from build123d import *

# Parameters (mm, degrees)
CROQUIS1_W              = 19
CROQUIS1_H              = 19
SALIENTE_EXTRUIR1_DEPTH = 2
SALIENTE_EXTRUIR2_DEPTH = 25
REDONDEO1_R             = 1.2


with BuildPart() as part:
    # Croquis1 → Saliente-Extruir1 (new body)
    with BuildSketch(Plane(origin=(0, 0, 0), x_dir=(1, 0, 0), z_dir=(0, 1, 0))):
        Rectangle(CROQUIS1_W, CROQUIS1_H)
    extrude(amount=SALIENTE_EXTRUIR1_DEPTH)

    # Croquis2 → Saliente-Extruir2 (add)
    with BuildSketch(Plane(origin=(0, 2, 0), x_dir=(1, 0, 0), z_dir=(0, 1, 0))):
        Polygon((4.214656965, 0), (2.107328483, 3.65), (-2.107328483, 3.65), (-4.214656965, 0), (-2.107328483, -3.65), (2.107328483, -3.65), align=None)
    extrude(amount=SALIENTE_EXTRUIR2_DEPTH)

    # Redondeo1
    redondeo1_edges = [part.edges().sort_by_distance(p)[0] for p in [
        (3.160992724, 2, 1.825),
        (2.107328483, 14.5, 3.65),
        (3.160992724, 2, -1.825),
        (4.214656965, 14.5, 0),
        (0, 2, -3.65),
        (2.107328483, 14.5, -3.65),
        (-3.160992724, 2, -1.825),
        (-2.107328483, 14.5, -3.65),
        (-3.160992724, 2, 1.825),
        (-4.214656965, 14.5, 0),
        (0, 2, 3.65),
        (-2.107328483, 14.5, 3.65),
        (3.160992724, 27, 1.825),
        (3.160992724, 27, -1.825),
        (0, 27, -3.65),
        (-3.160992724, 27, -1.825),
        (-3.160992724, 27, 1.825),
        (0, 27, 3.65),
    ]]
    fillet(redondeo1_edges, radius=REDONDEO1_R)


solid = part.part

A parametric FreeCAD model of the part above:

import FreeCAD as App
import Part
import Sketcher
from FreeCAD import Vector
Q = App.Units.Quantity


def edges_at(feature, points):
    """Names of the edges that pass closest to the given points."""
    edges = feature.Shape.Edges
    near = lambda p: min(range(len(edges)), key=lambda i: edges[i].distToShape(Part.Vertex(*p))[0])
    return sorted({f"Edge{near(p) + 1}" for p in points})


def add_polygon(sketch, points):
    """Adds a closed chain of lines whose ends are joined by coincident constraints."""
    first, n = sketch.GeometryCount, len(points)
    for a, b in zip(points, points[1:] + points[:1]):
        sketch.addGeometry(Part.LineSegment(App.Vector(*a, 0), App.Vector(*b, 0)), False)
    for i in range(n):
        sketch.addConstraint(Sketcher.Constraint("Coincident", first + i, 2, first + (i + 1) % n, 1))

doc = App.newDocument("Part")
params = doc.addObject("Spreadsheet::Sheet", "Params")
for row, (alias, value) in enumerate([
    ("sketch1_width", "19 mm"),
    ("pad1_length", "2 mm"),
    ("pad2_length", "25 mm"),
    ("fillet_radius", "1.2 mm"),
], start=1):
    params.set(f"A{row}", alias)
    params.set(f"B{row}", "=" + value)
    params.setAlias(f"B{row}", alias)

body = doc.addObject("PartDesign::Body", "Body")

sketch1 = body.newObject("Sketcher::SketchObject", "Sketch")
sketch1.AttachmentSupport = (doc.getObject("XZ_Plane"), [""])
sketch1.MapMode = "FlatFace"
add_polygon(sketch1, [(-10, -10), (-10, 10), (10, 10), (10, -10)])
sketch1.addConstraint(Sketcher.Constraint("Vertical", 0))
sketch1.addConstraint(Sketcher.Constraint("Horizontal", 1))
sketch1.addConstraint(Sketcher.Constraint("Vertical", 2))
sketch1.addConstraint(Sketcher.Constraint("Horizontal", 3))
sketch1.addConstraint(Sketcher.Constraint("Symmetric", 0, 2, 2, 2, -1, 1))
sketch1.addConstraint(Sketcher.Constraint("Equal", 3, 0))
sketch1.addConstraint(Sketcher.Constraint("DistanceX", 1, 1, 1, 2, Q("19 mm")))
sketch1.setExpression("Constraints[10]", "Params.sketch1_width")
pad1 = body.newObject("PartDesign::Pad", "Pad")
pad1.Profile = sketch1
pad1.setExpression("Length", "Params.pad1_length")
pad1.Reversed = True

sketch2 = body.newObject("Sketcher::SketchObject", "Sketch001")
sketch2.AttachmentSupport = (doc.getObject("XZ_Plane"), [""])
sketch2.MapMode = "FlatFace"
sketch2.AttachmentOffset = App.Placement(Vector(0, 0, -2), App.Rotation())
add_polygon(sketch2, [(4.2, 0), (2.1, -3.6), (-2.1, -3.6), (-4.2, 0), (-2.1, 3.6), (2.1, 3.6)])
sketch2.addConstraint(Sketcher.Constraint("Horizontal", 1))
sketch2.addConstraint(Sketcher.Constraint("Horizontal", 4))
sketch2.addConstraint(Sketcher.Constraint("Symmetric", 0, 2, 3, 2, -1, 1))
sketch2.addConstraint(Sketcher.Constraint("Symmetric", 2, 2, 5, 2, -1, 1))
sketch2.addConstraint(Sketcher.Constraint("PointOnObject", 2, 2, -1))
sketch2.addConstraint(Sketcher.Constraint("Parallel", 2, 5))
sketch2.addConstraint(Sketcher.Constraint("Vertical", 1, 2, 3, 2))
sketch2.addConstraint(Sketcher.Constraint("Angle", 0, Q("-120 deg")))
sketch2.addConstraint(Sketcher.Constraint("DistanceY", 1, 2, 3, 2, Q("7.3 mm")))
sketch2.addConstraint(Sketcher.Constraint("DistanceX", 1, 2, 1, 1, Q("4.214657 mm")))
pad2 = body.newObject("PartDesign::Pad", "Pad001")
pad2.Profile = sketch2
pad2.setExpression("Length", "Params.pad2_length")
pad2.Reversed = True
doc.recompute()

fillet = body.newObject("PartDesign::Fillet", "Fillet")
fillet.Base = (pad2, edges_at(pad2, [
    (3.161, 2, 1.825),
    (2.107, 14.5, 3.65),
    (3.161, 2, -1.825),
    (4.215, 14.5, 0),
    (0, 2, -3.65),
    (2.107, 14.5, -3.65),
    (-3.161, 2, -1.825),
    (-2.107, 14.5, -3.65),
    (-3.161, 2, 1.825),
    (-4.215, 14.5, 0),
    (0, 2, 3.65),
    (-2.107, 14.5, 3.65),
    (3.161, 27, 1.825),
    (3.161, 27, -1.825),
    (0, 27, -3.65),
    (-3.161, 27, -1.825),
    (-3.161, 27, 1.825),
    (0, 27, 3.65),
]))
fillet.setExpression("Radius", "Params.fillet_radius")

doc.recompute()
